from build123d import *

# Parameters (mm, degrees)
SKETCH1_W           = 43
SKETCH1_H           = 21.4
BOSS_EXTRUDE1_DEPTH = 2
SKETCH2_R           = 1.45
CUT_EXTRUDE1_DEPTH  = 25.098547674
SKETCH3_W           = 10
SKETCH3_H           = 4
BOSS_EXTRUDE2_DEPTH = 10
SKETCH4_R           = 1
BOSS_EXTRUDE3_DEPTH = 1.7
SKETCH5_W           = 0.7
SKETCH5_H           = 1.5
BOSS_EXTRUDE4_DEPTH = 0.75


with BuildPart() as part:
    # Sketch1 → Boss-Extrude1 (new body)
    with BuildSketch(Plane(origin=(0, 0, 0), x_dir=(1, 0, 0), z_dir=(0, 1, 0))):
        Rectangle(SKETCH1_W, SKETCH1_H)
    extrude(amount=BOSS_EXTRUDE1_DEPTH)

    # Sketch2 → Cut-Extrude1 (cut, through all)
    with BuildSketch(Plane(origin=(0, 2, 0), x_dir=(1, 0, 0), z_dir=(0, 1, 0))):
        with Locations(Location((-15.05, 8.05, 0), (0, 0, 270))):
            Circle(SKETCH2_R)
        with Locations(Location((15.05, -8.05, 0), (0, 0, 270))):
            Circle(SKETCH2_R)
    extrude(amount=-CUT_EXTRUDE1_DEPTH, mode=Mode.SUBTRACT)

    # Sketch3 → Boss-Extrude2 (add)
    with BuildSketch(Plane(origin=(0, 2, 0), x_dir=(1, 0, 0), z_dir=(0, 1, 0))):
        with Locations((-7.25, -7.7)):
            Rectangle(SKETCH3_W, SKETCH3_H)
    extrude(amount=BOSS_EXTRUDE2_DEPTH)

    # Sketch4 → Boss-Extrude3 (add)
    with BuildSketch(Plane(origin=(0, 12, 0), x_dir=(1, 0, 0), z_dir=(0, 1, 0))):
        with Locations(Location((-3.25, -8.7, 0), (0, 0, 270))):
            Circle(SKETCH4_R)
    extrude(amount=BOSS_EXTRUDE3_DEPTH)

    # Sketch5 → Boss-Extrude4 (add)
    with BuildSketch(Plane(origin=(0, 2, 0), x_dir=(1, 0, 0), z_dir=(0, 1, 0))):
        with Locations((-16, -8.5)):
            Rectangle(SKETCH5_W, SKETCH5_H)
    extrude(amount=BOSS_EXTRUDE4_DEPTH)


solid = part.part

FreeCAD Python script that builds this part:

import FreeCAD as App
import Part
import Sketcher
Q = App.Units.Quantity

doc = App.newDocument("Part")
params = doc.addObject("Spreadsheet::Sheet", "Params")
for row, (alias, value) in enumerate([
    ("sketch1_width", "43 mm"),
    ("sketch1_height", "21.4 mm"),
    ("pad1_length", "2 mm"),
    ("sketch2_diameter", "2.9 mm"),
    ("sketch3_width", "10 mm"),
    ("sketch3_height", "4 mm"),
    ("pad2_length", "10 mm"),
    ("sketch4_diameter", "2 mm"),
    ("pad3_length", "1.7 mm"),
    ("sketch5_width", "0.7 mm"),
    ("sketch5_height", "1.5 mm"),
    ("pad4_length", "0.75 mm"),
], start=1):
    params.set(f"A{row}", alias)
    params.set(f"B{row}", "=" + value)
    params.setAlias(f"B{row}", alias)

body = doc.addObject("PartDesign::Body", "Body")

sketch1 = body.newObject("Sketcher::SketchObject", "Sketch")
sketch1.AttachmentSupport = (doc.getObject("XZ_Plane"), [""])
sketch1.MapMode = "FlatFace"
sketch1.addGeometry([
    Part.LineSegment(App.Vector(-22, -11, 0), App.Vector(-22, 11, 0)),
    Part.LineSegment(App.Vector(-22, 11, 0), App.Vector(22, 11, 0)),
    Part.LineSegment(App.Vector(22, 11, 0), App.Vector(22, -11, 0)),
    Part.LineSegment(App.Vector(22, -11, 0), App.Vector(-22, -11, 0)),
], False)
sketch1.addConstraint([
    Sketcher.Constraint("Coincident", 0, 2, 1, 1),
    Sketcher.Constraint("Coincident", 1, 2, 2, 1),
    Sketcher.Constraint("Coincident", 2, 2, 3, 1),
    Sketcher.Constraint("Coincident", 3, 2, 0, 1),
    Sketcher.Constraint("Vertical", 0),
    Sketcher.Constraint("Horizontal", 1),
    Sketcher.Constraint("Vertical", 2),
    Sketcher.Constraint("Horizontal", 3),
    Sketcher.Constraint("Symmetric", 0, 2, 2, 2, -1, 1),
    Sketcher.Constraint("DistanceX", 1, 1, 1, 2, Q("43 mm")),
    Sketcher.Constraint("DistanceY", 0, 1, 0, 2, Q("21.4 mm")),
])
sketch1.setExpression("Constraints[9]", "Params.sketch1_width")
sketch1.setExpression("Constraints[10]", "Params.sketch1_height")
pad1 = body.newObject("PartDesign::Pad", "Pad")
pad1.Profile = sketch1
pad1.setExpression("Length", "Params.pad1_length")
pad1.Reversed = True

sketch2 = body.newObject("Sketcher::SketchObject", "Sketch001")
sketch2.AttachmentSupport = (doc.getObject("XZ_Plane"), [""])
sketch2.MapMode = "FlatFace"
sketch2.AttachmentOffset = App.Placement(App.Vector(0, 0, -2), App.Rotation())
sketch2.addGeometry([
    Part.Circle(App.Vector(-15.1, -8.1, 0), App.Vector(0, 0, 1), 1.4),
    Part.Circle(App.Vector(15.1, 8.1, 0), App.Vector(0, 0, 1), 1.4),
], False)
sketch2.addConstraint([
    Sketcher.Constraint("Equal", 0, 1),
    Sketcher.Constraint("Symmetric", 0, 3, 1, 3, -1, 1),
    Sketcher.Constraint("Diameter", 0, Q("2.9 mm")),
    Sketcher.Constraint("DistanceX", 0, 3, 1, 3, Q("30.1 mm")),
    Sketcher.Constraint("DistanceY", 0, 3, 1, 3, Q("16.1 mm")),
])
sketch2.setExpression("Constraints[2]", "Params.sketch2_diameter")
pocket1 = body.newObject("PartDesign::Pocket", "Pocket")
pocket1.Profile = sketch2
pocket1.Type = "ThroughAll"
pocket1.Reversed = True

sketch3 = body.newObject("Sketcher::SketchObject", "Sketch002")
sketch3.AttachmentSupport = (doc.getObject("XZ_Plane"), [""])
sketch3.MapMode = "FlatFace"
sketch3.AttachmentOffset = App.Placement(App.Vector(0, 0, -2), App.Rotation())
sketch3.addGeometry([
    Part.LineSegment(App.Vector(-12.2, 5.7, 0), App.Vector(-12.2, 9.7, 0)),
    Part.LineSegment(App.Vector(-12.2, 9.7, 0), App.Vector(-2.2, 9.7, 0)),
    Part.LineSegment(App.Vector(-2.2, 9.7, 0), App.Vector(-2.2, 5.7, 0)),
    Part.LineSegment(App.Vector(-2.2, 5.7, 0), App.Vector(-12.2, 5.7, 0)),
], False)
sketch3.addConstraint([
    Sketcher.Constraint("Coincident", 0, 2, 1, 1),
    Sketcher.Constraint("Coincident", 1, 2, 2, 1),
    Sketcher.Constraint("Coincident", 2, 2, 3, 1),
    Sketcher.Constraint("Coincident", 3, 2, 0, 1),
    Sketcher.Constraint("Vertical", 0),
    Sketcher.Constraint("Horizontal", 1),
    Sketcher.Constraint("Vertical", 2),
    Sketcher.Constraint("Horizontal", 3),
    Sketcher.Constraint("DistanceX", 1, 1, 1, 2, Q("10 mm")),
    Sketcher.Constraint("DistanceY", 0, 1, 0, 2, Q("4 mm")),
    Sketcher.Constraint("DistanceY", -1, 1, 0, 2, Q("9.7 mm")),
    Sketcher.Constraint("DistanceX", 0, 2, -1, 1, Q("12.25 mm")),
])
sketch3.setExpression("Constraints[8]", "Params.sketch3_width")
sketch3.setExpression("Constraints[9]", "Params.sketch3_height")
pad2 = body.newObject("PartDesign::Pad", "Pad001")
pad2.Profile = sketch3
pad2.setExpression("Length", "Params.pad2_length")
pad2.Reversed = True

sketch4 = body.newObject("Sketcher::SketchObject", "Sketch003")
sketch4.AttachmentSupport = (doc.getObject("XZ_Plane"), [""])
sketch4.MapMode = "FlatFace"
sketch4.AttachmentOffset = App.Placement(App.Vector(0, 0, -12), App.Rotation())
sketch4.addGeometry(Part.Circle(App.Vector(-3.2, 8.7, 0), App.Vector(0, 0, 1), 1), False)
sketch4.addConstraint([
    Sketcher.Constraint("Diameter", 0, Q("2 mm")),
    Sketcher.Constraint("DistanceY", -1, 1, 0, 3, Q("8.7 mm")),
    Sketcher.Constraint("DistanceX", 0, 3, -1, 1, Q("3.25 mm")),
])
sketch4.setExpression("Constraints[0]", "Params.sketch4_diameter")
pad3 = body.newObject("PartDesign::Pad", "Pad002")
pad3.Profile = sketch4
pad3.setExpression("Length", "Params.pad3_length")
pad3.Reversed = True

sketch5 = body.newObject("Sketcher::SketchObject", "Sketch004")
sketch5.AttachmentSupport = (doc.getObject("XZ_Plane"), [""])
sketch5.MapMode = "FlatFace"
sketch5.AttachmentOffset = App.Placement(App.Vector(0, 0, -2), App.Rotation())
sketch5.addGeometry([
    Part.LineSegment(App.Vector(-16.4, 7.8, 0), App.Vector(-16.4, 9.2, 0)),
    Part.LineSegment(App.Vector(-16.4, 9.2, 0), App.Vector(-15.7, 9.2, 0)),
    Part.LineSegment(App.Vector(-15.7, 9.2, 0), App.Vector(-15.7, 7.8, 0)),
    Part.LineSegment(App.Vector(-15.7, 7.8, 0), App.Vector(-16.4, 7.8, 0)),
], False)
sketch5.addConstraint([
    Sketcher.Constraint("Coincident", 0, 2, 1, 1),
    Sketcher.Constraint("Coincident", 1, 2, 2, 1),
    Sketcher.Constraint("Coincident", 2, 2, 3, 1),
    Sketcher.Constraint("Coincident", 3, 2, 0, 1),
    Sketcher.Constraint("Vertical", 0),
    Sketcher.Constraint("Horizontal", 1),
    Sketcher.Constraint("Vertical", 2),
    Sketcher.Constraint("Horizontal", 3),
    Sketcher.Constraint("DistanceX", 1, 1, 1, 2, Q("0.7 mm")),
    Sketcher.Constraint("DistanceY", 0, 1, 0, 2, Q("1.5 mm")),
    Sketcher.Constraint("DistanceX", 0, 2, -1, 1, Q("16.35 mm")),
    Sketcher.Constraint("DistanceY", -1, 1, 0, 2, Q("9.25 mm")),
])
sketch5.setExpression("Constraints[8]", "Params.sketch5_width")
sketch5.setExpression("Constraints[9]", "Params.sketch5_height")
pad4 = body.newObject("PartDesign::Pad", "Pad003")
pad4.Profile = sketch5
pad4.setExpression("Length", "Params.pad4_length")
pad4.Reversed = True

doc.recompute()
